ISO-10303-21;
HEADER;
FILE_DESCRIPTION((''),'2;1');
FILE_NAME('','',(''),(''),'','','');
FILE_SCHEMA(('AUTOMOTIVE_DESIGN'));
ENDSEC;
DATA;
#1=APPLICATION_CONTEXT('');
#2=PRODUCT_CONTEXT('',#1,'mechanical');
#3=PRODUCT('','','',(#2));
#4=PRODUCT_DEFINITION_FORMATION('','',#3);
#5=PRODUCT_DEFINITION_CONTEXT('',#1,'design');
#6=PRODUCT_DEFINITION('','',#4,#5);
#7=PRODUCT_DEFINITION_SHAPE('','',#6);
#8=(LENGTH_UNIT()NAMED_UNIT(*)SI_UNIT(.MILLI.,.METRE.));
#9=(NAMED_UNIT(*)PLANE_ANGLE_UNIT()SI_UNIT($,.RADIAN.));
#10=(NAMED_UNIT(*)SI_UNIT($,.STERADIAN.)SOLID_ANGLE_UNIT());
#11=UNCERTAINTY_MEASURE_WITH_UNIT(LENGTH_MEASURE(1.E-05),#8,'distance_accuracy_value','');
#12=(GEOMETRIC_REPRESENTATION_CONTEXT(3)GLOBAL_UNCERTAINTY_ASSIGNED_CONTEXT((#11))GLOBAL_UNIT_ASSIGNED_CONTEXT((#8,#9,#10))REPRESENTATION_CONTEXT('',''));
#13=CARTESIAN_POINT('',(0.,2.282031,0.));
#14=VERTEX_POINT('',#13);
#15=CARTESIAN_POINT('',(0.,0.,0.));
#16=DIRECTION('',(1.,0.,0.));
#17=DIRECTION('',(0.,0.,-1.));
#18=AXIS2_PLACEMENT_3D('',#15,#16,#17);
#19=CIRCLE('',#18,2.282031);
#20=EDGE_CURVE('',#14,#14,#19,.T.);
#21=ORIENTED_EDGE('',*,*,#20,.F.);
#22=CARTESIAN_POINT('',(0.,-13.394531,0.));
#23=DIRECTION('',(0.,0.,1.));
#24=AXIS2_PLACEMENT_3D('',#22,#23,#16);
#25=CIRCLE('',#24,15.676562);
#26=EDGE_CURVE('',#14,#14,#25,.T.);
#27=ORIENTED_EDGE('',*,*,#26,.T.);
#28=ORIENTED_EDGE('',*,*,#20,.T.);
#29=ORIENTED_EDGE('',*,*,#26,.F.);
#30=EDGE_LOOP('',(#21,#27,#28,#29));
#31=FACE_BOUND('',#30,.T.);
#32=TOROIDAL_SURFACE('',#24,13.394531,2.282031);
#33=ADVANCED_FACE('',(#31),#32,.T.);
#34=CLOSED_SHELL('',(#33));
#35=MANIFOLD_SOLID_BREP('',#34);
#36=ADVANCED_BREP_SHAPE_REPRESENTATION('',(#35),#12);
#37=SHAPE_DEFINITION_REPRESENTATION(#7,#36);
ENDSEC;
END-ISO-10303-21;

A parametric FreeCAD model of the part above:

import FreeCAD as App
import Part
import Sketcher

V = App.Vector

doc = App.newDocument("Part")
body = doc.addObject("PartDesign::Body", "Body")

sketch1 = body.newObject("Sketcher::SketchObject", "Sketch")
sketch1.AttachmentSupport = (doc.getObject("YZ_Plane"), [""])
sketch1.MapMode = "FlatFace"
sketch1.addGeometry(Part.Circle(V(0, 0, 0), V(0, 0, 1), 2.3), False)
sketch1.addConstraint(Sketcher.Constraint("Coincident", 0, 3, -1, 1))
sketch1.addConstraint(Sketcher.Constraint("Diameter", 0, 4.564063))

sketch2 = body.newObject("Sketcher::SketchObject", "Sketch001")
sketch2.AttachmentSupport = (doc.getObject("XY_Plane"), [""])
sketch2.MapMode = "FlatFace"
sketch2.addGeometry(Part.Circle(V(0, -13, 0), V(0, 0, 1), 13), False)
sketch2.addConstraint(Sketcher.Constraint("PointOnObject", 0, 3, -2))
sketch2.addConstraint(Sketcher.Constraint("Diameter", 0, 26.789062))
sketch2.addConstraint(Sketcher.Constraint("DistanceY", 0, 3, -1, 1, 13.394531))
doc.recompute()

additivepipe = body.newObject("PartDesign::AdditivePipe", "AdditivePipe")
additivepipe.Profile = sketch1
additivepipe.Spine = (sketch2, ["Edge1"])

doc.recompute()
